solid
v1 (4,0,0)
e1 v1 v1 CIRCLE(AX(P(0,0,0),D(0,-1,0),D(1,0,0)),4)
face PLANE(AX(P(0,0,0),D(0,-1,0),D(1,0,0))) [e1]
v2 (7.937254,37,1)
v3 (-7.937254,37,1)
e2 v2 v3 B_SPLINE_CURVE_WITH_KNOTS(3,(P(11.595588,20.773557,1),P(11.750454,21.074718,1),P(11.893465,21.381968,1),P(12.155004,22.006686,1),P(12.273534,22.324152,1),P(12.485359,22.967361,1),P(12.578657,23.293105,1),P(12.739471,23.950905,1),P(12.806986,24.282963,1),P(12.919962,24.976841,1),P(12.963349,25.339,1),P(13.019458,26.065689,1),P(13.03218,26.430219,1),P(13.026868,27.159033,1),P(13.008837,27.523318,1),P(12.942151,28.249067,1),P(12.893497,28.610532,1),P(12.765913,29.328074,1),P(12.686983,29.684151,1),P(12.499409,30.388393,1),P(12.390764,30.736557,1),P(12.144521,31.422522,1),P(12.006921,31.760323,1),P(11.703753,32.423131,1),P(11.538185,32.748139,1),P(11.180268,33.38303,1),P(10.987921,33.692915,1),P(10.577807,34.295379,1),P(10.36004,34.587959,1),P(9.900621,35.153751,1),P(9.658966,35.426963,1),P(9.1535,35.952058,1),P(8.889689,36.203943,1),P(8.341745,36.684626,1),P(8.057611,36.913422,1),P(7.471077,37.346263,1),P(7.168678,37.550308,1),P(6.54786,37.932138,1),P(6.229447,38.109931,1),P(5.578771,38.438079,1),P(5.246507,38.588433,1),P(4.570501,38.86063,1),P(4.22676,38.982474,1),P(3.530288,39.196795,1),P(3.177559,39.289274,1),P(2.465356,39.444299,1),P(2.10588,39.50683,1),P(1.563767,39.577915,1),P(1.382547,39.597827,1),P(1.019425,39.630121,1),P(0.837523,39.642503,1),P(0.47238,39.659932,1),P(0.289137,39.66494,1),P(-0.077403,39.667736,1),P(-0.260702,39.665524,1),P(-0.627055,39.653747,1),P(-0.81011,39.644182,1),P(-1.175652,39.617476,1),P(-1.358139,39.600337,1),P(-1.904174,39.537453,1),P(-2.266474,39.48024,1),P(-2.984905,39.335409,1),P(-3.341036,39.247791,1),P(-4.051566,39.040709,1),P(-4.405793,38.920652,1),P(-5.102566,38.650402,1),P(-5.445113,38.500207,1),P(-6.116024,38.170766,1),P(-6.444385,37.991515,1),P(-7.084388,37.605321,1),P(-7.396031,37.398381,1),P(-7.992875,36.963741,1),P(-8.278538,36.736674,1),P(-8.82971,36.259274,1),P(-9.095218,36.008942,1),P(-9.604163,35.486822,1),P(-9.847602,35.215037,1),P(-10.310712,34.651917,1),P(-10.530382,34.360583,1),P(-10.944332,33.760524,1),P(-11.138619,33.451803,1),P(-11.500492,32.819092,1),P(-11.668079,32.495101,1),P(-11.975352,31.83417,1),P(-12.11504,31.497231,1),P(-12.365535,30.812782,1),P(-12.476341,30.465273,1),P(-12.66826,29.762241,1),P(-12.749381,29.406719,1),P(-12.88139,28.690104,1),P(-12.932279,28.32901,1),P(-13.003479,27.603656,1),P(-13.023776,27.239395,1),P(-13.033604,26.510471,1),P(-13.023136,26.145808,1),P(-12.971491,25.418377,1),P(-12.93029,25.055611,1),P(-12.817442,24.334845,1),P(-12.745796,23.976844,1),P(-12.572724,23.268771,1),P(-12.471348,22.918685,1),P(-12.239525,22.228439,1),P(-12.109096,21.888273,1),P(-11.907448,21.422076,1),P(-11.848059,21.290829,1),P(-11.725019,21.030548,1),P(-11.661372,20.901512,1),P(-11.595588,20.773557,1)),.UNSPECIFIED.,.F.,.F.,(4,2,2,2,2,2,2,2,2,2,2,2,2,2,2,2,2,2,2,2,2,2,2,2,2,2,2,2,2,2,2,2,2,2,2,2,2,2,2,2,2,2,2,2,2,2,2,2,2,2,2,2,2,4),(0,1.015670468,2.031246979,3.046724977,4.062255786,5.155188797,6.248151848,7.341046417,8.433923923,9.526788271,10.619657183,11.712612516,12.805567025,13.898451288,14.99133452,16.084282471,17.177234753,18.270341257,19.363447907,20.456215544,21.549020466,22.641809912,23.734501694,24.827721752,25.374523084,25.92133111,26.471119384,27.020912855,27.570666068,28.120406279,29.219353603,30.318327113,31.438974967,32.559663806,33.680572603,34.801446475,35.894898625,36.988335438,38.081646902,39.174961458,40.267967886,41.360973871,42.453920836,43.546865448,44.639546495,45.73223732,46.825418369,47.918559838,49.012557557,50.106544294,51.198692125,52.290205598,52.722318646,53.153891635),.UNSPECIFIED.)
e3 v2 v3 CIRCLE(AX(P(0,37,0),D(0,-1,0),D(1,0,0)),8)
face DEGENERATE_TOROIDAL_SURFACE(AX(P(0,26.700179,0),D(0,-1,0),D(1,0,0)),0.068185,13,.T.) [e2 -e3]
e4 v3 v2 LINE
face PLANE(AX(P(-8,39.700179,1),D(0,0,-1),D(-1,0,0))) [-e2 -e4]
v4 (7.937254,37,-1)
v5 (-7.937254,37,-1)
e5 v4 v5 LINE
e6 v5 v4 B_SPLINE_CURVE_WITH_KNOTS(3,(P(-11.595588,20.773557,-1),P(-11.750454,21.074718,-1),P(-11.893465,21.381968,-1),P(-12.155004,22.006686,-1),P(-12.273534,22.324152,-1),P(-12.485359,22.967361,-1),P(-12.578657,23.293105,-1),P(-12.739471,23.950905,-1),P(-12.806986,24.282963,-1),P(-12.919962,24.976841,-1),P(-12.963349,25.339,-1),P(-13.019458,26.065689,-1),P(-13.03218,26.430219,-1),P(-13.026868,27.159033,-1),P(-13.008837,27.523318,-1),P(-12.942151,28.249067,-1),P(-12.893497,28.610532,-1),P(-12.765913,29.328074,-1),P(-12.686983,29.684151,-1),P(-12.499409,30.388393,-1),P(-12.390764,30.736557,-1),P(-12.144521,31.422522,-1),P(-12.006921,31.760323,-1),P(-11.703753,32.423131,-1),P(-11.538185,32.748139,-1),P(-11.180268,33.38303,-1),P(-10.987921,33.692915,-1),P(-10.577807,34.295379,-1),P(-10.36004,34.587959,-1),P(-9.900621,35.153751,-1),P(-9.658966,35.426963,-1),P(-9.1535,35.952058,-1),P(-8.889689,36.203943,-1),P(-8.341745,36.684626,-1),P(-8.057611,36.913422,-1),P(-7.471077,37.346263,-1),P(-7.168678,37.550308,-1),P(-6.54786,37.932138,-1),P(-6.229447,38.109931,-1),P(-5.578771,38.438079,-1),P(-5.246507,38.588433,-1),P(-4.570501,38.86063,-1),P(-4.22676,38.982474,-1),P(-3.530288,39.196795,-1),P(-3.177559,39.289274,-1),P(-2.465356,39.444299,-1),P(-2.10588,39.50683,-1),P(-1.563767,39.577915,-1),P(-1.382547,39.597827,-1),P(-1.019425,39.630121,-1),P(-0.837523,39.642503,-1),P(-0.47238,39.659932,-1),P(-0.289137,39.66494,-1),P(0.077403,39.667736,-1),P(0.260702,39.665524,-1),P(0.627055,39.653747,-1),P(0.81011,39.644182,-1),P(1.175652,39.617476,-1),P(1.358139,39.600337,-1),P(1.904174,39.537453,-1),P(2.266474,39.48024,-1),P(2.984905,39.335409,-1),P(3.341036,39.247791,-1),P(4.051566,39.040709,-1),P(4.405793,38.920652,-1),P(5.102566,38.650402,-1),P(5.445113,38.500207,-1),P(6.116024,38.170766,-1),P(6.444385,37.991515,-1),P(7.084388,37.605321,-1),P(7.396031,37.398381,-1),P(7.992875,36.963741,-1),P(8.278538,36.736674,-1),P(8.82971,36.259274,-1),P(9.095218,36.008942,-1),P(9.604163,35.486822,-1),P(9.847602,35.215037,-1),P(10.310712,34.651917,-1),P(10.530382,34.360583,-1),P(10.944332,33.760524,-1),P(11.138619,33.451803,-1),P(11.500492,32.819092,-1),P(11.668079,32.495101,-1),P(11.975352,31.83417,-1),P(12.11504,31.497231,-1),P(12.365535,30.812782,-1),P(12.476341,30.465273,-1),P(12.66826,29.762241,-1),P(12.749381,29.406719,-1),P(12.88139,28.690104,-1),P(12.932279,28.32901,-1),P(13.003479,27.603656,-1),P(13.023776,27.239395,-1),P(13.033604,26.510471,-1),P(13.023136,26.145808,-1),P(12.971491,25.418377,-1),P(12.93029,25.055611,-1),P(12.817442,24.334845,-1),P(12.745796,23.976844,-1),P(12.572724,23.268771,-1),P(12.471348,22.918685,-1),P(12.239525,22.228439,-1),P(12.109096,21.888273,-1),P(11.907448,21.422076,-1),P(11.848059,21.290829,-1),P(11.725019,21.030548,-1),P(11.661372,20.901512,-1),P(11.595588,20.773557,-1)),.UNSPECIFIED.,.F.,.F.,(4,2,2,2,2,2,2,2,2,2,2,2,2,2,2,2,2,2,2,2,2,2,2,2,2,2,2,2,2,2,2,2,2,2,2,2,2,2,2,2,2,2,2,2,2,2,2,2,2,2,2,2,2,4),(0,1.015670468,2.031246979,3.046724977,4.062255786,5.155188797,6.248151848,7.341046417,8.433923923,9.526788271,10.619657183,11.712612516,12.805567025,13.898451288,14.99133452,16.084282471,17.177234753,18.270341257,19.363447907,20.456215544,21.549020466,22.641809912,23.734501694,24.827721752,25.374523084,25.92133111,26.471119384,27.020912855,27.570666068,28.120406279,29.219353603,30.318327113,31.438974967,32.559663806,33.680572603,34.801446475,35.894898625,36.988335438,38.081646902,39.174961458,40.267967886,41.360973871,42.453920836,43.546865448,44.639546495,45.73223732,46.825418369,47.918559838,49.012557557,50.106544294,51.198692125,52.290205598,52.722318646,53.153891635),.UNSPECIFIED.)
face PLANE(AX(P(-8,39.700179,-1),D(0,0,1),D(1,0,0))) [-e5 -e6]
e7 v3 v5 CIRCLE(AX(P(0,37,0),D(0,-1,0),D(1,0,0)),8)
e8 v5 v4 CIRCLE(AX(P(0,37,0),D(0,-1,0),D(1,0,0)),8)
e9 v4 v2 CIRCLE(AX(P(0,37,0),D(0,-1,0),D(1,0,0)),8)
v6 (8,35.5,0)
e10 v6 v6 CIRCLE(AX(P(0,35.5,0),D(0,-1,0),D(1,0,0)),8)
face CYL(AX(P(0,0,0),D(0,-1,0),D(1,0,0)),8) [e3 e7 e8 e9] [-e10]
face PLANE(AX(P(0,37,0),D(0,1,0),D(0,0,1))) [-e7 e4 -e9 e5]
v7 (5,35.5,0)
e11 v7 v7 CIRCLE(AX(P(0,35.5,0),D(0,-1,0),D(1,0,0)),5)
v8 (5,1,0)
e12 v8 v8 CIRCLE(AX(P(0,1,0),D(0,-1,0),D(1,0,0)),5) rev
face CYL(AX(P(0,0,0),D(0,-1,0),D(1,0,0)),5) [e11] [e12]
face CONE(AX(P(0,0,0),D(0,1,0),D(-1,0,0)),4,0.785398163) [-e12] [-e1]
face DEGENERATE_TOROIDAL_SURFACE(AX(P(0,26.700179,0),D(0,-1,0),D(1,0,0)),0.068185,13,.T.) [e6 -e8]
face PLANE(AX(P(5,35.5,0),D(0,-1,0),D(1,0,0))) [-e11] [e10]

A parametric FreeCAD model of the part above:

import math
import FreeCAD as App
import Part
import Sketcher


def edges_at(feature, points):
    """Names of the edges that pass closest to the given points."""
    edges = feature.Shape.Edges
    near = lambda p: min(range(len(edges)), key=lambda i: edges[i].distToShape(Part.Vertex(*p))[0])
    return sorted({f"Edge{near(p) + 1}" for p in points})

doc = App.newDocument("Part")
body = doc.addObject("PartDesign::Body", "Body")

sketch1 = body.newObject("Sketcher::SketchObject", "Sketch")
sketch1.AttachmentSupport = (doc.getObject("XY_Plane"), [""])
sketch1.MapMode = "FlatFace"
sketch1.addGeometry([
    Part.LineSegment(App.Vector(0, 0, 0), App.Vector(5, 0, 0)),
    Part.LineSegment(App.Vector(5, 0, 0), App.Vector(5, 35.5, 0)),
    Part.LineSegment(App.Vector(5, 35.5, 0), App.Vector(8, 35.5, 0)),
    Part.LineSegment(App.Vector(8, 35.5, 0), App.Vector(8, 37, 0)),
    Part.ArcOfCircle(Part.Circle(App.Vector(0.068185, 26.700179, 0), App.Vector(0, 0, 1), 13), math.radians(52.400403), math.radians(90.300519)),
    Part.LineSegment(App.Vector(0, 39.7, 0), App.Vector(0, 0, 0)),
], False)
sketch1.addConstraint([
    Sketcher.Constraint("Coincident", 0, 2, 1, 1),
    Sketcher.Constraint("Coincident", 1, 2, 2, 1),
    Sketcher.Constraint("Coincident", 2, 2, 3, 1),
    Sketcher.Constraint("Coincident", 3, 2, 4, 1),
    Sketcher.Constraint("Coincident", 4, 2, 5, 1),
    Sketcher.Constraint("Coincident", 5, 2, 0, 1),
    Sketcher.Constraint("Horizontal", 0),
    Sketcher.Constraint("Vertical", 1),
    Sketcher.Constraint("Horizontal", 2),
    Sketcher.Constraint("Vertical", 3),
    Sketcher.Constraint("Vertical", 5),
    Sketcher.Constraint("Coincident", 5, 2, -1, 1),
    Sketcher.Constraint("Radius", 4, 13.0),
    Sketcher.Constraint("DistanceX", 0, 1, 0, 2, 5.0),
    Sketcher.Constraint("DistanceX", 2, 1, 2, 2, 3.0),
    Sketcher.Constraint("DistanceY", 1, 1, 1, 2, 35.5),
    Sketcher.Constraint("DistanceY", 3, 1, 3, 2, 1.5),
    Sketcher.Constraint("DistanceY", 5, 2, 5, 1, 39.7),
])
revolution = body.newObject("PartDesign::Revolution", "Revolution")
revolution.Profile = sketch1
revolution.ReferenceAxis = (sketch1, ["V_Axis"])
revolution.Angle = 360
doc.recompute()

chamfer = body.newObject("PartDesign::Chamfer", "Chamfer")
chamfer.Base = (revolution, edges_at(revolution, [(-5, 0, 0)]))
chamfer.Size = 1

sketch2 = body.newObject("Sketcher::SketchObject", "Sketch001")
sketch2.AttachmentSupport = (doc.getObject("XZ_Plane"), [""])
sketch2.MapMode = "FlatFace"
sketch2.AttachmentOffset = App.Placement(App.Vector(0, 0, -37), App.Rotation())
sketch2.addGeometry([
    Part.LineSegment(App.Vector(-8, -1, 0), App.Vector(-8, 1, 0)),
    Part.LineSegment(App.Vector(-8, 1, 0), App.Vector(8, 1, 0)),
    Part.LineSegment(App.Vector(8, 1, 0), App.Vector(8, -1, 0)),
    Part.LineSegment(App.Vector(8, -1, 0), App.Vector(-8, -1, 0)),
], False)
sketch2.addConstraint([
    Sketcher.Constraint("Coincident", 0, 2, 1, 1),
    Sketcher.Constraint("Coincident", 1, 2, 2, 1),
    Sketcher.Constraint("Coincident", 2, 2, 3, 1),
    Sketcher.Constraint("Coincident", 3, 2, 0, 1),
    Sketcher.Constraint("Vertical", 0),
    Sketcher.Constraint("Horizontal", 1),
    Sketcher.Constraint("Vertical", 2),
    Sketcher.Constraint("Horizontal", 3),
    Sketcher.Constraint("Symmetric", 0, 2, 2, 2, -1, 1),
    Sketcher.Constraint("DistanceX", 1, 1, 1, 2, 16.0),
    Sketcher.Constraint("DistanceY", 0, 1, 0, 2, 2.0),
])
pocket1 = body.newObject("PartDesign::Pocket", "Pocket")
pocket1.Profile = sketch2
pocket1.Type = "ThroughAll"

doc.recompute()
